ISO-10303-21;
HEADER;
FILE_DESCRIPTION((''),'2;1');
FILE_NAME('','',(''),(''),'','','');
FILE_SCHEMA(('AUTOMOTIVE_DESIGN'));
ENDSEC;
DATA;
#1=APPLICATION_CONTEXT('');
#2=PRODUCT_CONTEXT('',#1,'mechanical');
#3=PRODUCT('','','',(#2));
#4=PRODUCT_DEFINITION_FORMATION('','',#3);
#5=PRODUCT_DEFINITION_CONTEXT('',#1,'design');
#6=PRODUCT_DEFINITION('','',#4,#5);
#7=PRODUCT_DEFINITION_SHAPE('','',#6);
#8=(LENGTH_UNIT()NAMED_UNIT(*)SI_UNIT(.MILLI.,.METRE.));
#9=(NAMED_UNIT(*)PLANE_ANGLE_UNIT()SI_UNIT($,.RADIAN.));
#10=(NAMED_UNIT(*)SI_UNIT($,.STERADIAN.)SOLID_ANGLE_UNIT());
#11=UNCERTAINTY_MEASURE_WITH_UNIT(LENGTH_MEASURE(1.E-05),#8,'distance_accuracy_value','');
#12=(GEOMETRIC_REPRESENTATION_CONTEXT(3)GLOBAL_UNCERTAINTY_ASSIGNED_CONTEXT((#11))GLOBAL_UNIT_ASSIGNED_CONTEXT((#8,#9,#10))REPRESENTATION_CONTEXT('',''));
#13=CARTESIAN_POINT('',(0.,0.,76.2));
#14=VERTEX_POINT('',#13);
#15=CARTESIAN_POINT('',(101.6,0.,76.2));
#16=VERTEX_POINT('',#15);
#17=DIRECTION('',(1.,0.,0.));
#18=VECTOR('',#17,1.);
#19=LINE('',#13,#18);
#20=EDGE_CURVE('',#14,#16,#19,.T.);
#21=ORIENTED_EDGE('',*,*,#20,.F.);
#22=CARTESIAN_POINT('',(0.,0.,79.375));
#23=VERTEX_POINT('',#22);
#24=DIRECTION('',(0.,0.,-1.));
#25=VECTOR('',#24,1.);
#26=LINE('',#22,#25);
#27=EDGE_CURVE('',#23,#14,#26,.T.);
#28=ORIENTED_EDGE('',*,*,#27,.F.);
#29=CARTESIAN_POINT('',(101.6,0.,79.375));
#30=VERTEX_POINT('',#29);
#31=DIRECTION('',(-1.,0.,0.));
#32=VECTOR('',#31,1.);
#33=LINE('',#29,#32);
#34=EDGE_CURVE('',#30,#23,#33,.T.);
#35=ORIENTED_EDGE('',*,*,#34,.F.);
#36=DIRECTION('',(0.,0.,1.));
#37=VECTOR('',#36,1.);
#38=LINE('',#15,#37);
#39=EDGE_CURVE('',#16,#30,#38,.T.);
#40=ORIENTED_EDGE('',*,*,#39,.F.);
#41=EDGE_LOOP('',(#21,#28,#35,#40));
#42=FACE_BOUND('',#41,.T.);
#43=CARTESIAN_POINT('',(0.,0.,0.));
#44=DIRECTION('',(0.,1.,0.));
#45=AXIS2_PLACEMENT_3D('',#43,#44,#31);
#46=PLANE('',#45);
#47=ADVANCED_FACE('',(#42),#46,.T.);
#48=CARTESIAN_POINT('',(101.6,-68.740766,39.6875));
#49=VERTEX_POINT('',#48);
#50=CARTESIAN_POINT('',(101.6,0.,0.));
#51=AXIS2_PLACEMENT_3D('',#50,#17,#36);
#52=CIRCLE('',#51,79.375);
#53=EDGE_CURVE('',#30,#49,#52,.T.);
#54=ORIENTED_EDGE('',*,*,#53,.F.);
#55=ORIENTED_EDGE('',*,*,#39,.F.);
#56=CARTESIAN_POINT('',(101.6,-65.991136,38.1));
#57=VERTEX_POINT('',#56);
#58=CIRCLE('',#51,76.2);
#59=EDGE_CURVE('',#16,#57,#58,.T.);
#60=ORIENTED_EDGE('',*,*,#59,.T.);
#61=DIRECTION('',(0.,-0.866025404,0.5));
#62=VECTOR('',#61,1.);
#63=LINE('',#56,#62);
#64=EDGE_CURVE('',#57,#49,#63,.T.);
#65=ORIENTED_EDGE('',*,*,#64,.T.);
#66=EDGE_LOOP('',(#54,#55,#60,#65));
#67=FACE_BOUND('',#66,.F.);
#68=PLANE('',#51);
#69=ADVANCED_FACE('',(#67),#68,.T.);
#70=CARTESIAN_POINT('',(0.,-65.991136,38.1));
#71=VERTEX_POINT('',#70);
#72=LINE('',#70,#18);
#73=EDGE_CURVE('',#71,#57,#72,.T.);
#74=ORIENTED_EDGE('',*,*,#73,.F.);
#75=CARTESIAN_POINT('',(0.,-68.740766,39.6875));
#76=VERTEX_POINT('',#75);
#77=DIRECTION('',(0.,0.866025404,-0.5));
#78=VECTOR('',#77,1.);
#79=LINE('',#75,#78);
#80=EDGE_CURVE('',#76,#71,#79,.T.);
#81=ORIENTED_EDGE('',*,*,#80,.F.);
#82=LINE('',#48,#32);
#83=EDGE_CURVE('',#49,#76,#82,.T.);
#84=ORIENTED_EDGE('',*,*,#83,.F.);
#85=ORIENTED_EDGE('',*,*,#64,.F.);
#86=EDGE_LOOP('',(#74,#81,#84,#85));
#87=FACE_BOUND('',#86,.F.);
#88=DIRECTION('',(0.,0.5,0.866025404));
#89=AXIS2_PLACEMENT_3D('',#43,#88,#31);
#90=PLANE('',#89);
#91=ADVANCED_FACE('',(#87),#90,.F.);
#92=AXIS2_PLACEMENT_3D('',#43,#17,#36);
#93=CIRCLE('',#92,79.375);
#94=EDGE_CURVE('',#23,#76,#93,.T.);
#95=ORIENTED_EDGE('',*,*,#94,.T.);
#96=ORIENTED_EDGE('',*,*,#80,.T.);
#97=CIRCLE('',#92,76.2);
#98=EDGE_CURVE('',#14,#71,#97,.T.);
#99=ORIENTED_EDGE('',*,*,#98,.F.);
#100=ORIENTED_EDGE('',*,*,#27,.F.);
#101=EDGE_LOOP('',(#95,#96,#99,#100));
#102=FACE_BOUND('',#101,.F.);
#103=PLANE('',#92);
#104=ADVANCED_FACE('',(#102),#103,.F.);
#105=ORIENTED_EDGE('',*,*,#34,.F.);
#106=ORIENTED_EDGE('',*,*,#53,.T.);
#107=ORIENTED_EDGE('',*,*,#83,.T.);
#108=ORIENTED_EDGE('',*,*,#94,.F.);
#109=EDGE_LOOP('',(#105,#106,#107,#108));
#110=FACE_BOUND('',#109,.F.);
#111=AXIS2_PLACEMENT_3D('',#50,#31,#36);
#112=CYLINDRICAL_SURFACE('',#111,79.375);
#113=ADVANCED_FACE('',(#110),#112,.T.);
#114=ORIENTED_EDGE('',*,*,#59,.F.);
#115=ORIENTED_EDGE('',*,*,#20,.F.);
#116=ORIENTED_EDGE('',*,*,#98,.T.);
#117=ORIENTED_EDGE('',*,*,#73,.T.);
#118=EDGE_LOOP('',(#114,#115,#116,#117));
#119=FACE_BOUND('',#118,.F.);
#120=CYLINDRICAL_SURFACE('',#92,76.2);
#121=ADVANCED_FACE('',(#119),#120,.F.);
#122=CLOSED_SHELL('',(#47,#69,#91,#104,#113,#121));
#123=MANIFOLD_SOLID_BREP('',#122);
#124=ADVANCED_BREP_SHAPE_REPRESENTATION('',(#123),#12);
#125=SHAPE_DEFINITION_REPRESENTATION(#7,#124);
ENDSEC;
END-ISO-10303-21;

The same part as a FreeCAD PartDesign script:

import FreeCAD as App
import Part
import Sketcher
Q = App.Units.Quantity


def add_polygon(sketch, points):
    """Adds a closed chain of lines whose ends are joined by coincident constraints."""
    first, n = sketch.GeometryCount, len(points)
    for a, b in zip(points, points[1:] + points[:1]):
        sketch.addGeometry(Part.LineSegment(App.Vector(*a, 0), App.Vector(*b, 0)), False)
    for i in range(n):
        sketch.addConstraint(Sketcher.Constraint("Coincident", first + i, 2, first + (i + 1) % n, 1))

doc = App.newDocument("Part")
params = doc.addObject("Spreadsheet::Sheet", "Params")
for row, (alias, value) in enumerate([
    ("sketch1_width", "4 in"),
    ("sketch1_height", "0.125 in"),
    ("revolution_angle", "60 deg"),
], start=1):
    params.set(f"A{row}", alias)
    params.set(f"B{row}", "=" + value)
    params.setAlias(f"B{row}", alias)

body = doc.addObject("PartDesign::Body", "Body")

# Sketch on XZ plane
sketch1 = doc.addObject("Sketcher::SketchObject", "Sketch")
body.addObject(sketch1)
sketch1.AttachmentSupport = (doc.XZ_Plane, [""])
sketch1.MapMode = "FlatFace"
add_polygon(sketch1, [(101.6, 76.2), (0, 76.2), (0, 79.4), (101.6, 79.4)])  # lines 0-3
sketch1.addConstraint([
    Sketcher.Constraint("Horizontal", 0),
    Sketcher.Constraint("Vertical", 1),
    Sketcher.Constraint("Horizontal", 2),
    Sketcher.Constraint("Vertical", 3),
    Sketcher.Constraint("PointOnObject", 0, 2, -2),
    Sketcher.Constraint("DistanceX", 0, 2, 0, 1, Q("4 in")),
    Sketcher.Constraint("DistanceY", -1, 1, 0, 2, Q("3 in")),
    Sketcher.Constraint("DistanceY", 1, 1, 1, 2, Q("0.125 in")),
])
sketch1.setExpression("Constraints[9]", "Params.sketch1_width")
sketch1.setExpression("Constraints[11]", "Params.sketch1_height")
revolution = doc.addObject("PartDesign::Revolution", "Revolution")
body.addObject(revolution)
revolution.Profile = sketch1
revolution.ReferenceAxis = (sketch1, ["H_Axis"])
revolution.setExpression("Angle", "Params.revolution_angle")

doc.recompute()
